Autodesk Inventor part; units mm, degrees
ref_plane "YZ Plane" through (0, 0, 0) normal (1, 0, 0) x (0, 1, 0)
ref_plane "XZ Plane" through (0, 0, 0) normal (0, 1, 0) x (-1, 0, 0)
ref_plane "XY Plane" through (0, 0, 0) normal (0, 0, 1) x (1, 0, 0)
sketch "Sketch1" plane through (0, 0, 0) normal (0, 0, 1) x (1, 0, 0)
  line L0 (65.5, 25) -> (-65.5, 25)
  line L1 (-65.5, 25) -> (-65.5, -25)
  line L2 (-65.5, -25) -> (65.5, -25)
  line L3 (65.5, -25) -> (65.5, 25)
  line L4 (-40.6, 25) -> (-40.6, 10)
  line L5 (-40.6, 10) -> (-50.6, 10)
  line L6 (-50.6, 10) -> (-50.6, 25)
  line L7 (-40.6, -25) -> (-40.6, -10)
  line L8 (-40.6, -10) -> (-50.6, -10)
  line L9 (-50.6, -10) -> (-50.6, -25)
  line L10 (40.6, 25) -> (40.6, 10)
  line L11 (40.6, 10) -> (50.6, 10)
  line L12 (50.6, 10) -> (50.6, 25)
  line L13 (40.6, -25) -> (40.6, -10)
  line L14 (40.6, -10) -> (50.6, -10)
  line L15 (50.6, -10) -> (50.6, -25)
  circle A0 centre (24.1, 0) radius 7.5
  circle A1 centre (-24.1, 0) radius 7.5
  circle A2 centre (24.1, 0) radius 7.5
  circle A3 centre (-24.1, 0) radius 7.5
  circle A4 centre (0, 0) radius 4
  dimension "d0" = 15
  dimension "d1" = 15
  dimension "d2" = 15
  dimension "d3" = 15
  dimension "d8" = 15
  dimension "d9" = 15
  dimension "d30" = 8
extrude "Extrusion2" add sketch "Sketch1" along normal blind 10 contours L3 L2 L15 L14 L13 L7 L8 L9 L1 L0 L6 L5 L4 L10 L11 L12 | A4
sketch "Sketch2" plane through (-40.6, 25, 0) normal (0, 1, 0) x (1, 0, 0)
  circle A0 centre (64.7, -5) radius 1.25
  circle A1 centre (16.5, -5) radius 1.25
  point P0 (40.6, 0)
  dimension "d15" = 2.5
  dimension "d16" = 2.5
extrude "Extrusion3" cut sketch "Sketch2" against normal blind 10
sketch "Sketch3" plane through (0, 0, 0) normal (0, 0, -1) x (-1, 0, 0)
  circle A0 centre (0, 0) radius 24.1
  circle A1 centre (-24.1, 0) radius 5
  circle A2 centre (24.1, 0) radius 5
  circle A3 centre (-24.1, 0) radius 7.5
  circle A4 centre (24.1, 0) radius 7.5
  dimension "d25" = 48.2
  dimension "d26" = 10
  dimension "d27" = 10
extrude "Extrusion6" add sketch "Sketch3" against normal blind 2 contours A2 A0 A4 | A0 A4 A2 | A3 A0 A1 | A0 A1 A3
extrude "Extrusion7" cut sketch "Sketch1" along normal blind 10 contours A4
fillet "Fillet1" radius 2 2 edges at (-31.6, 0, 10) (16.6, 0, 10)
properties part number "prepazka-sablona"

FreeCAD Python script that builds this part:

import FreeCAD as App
import Part
import Sketcher

V = App.Vector
Q = App.Units.Quantity


def edges_at(feature, points):
    """Names of the edges that pass closest to the given points."""
    edges = feature.Shape.Edges
    near = lambda p: min(range(len(edges)), key=lambda i: edges[i].distToShape(Part.Vertex(*p))[0])
    return sorted({f"Edge{near(p) + 1}" for p in points})

doc = App.newDocument("Part")
body = doc.addObject("PartDesign::Body", "Body")

# Sketch on XY plane
sketch1 = body.newObject("Sketcher::SketchObject", "Sketch")
sketch1.AttachmentSupport = (doc.getObject("XY_Plane"), [""])
sketch1.MapMode = "FlatFace"
sketch1.addGeometry([
    Part.LineSegment(V(66, -25, 0), V(66, 25, 0)),  # 0
    Part.LineSegment(V(66, 25, 0), V(51, 25, 0)),  # 1
    Part.LineSegment(V(51, 25, 0), V(51, 10, 0)),  # 2
    Part.LineSegment(V(51, 10, 0), V(41, 10, 0)),  # 3
    Part.LineSegment(V(41, 10, 0), V(41, 25, 0)),  # 4
    Part.LineSegment(V(41, 25, 0), V(-41, 25, 0)),  # 5
    Part.LineSegment(V(-41, 25, 0), V(-41, 10, 0)),  # 6
    Part.LineSegment(V(-41, 10, 0), V(-51, 10, 0)),  # 7
    Part.LineSegment(V(-51, 10, 0), V(-51, 25, 0)),  # 8
    Part.LineSegment(V(-51, 25, 0), V(-66, 25, 0)),  # 9
    Part.LineSegment(V(-66, 25, 0), V(-66, -25, 0)),  # 10
    Part.LineSegment(V(-66, -25, 0), V(-51, -25, 0)),  # 11
    Part.LineSegment(V(-51, -25, 0), V(-51, -10, 0)),  # 12
    Part.LineSegment(V(-51, -10, 0), V(-41, -10, 0)),  # 13
    Part.LineSegment(V(-41, -10, 0), V(-41, -25, 0)),  # 14
    Part.LineSegment(V(-41, -25, 0), V(41, -25, 0)),  # 15
    Part.LineSegment(V(41, -25, 0), V(41, -10, 0)),  # 16
    Part.LineSegment(V(41, -10, 0), V(51, -10, 0)),  # 17
    Part.LineSegment(V(51, -10, 0), V(51, -25, 0)),  # 18
    Part.LineSegment(V(51, -25, 0), V(66, -25, 0)),  # 19
    Part.Circle(V(-24, 0, 0), V(0, 0, 1), 8),  # 20
    Part.Circle(V(24, 0, 0), V(0, 0, 1), 8),  # 21
], False)
sketch1.addConstraint([
    Sketcher.Constraint("Coincident", 0, 2, 1, 1),
    Sketcher.Constraint("Coincident", 1, 2, 2, 1),
    Sketcher.Constraint("Coincident", 2, 2, 3, 1),
    Sketcher.Constraint("Coincident", 3, 2, 4, 1),
    Sketcher.Constraint("Coincident", 4, 2, 5, 1),
    Sketcher.Constraint("Coincident", 5, 2, 6, 1),
    Sketcher.Constraint("Coincident", 6, 2, 7, 1),
    Sketcher.Constraint("Coincident", 7, 2, 8, 1),
    Sketcher.Constraint("Coincident", 8, 2, 9, 1),
    Sketcher.Constraint("Coincident", 9, 2, 10, 1),
    Sketcher.Constraint("Coincident", 10, 2, 11, 1),
    Sketcher.Constraint("Coincident", 11, 2, 12, 1),
    Sketcher.Constraint("Coincident", 12, 2, 13, 1),
    Sketcher.Constraint("Coincident", 13, 2, 14, 1),
    Sketcher.Constraint("Coincident", 14, 2, 15, 1),
    Sketcher.Constraint("Coincident", 15, 2, 16, 1),
    Sketcher.Constraint("Coincident", 16, 2, 17, 1),
    Sketcher.Constraint("Coincident", 17, 2, 18, 1),
    Sketcher.Constraint("Coincident", 18, 2, 19, 1),
    Sketcher.Constraint("Coincident", 19, 2, 0, 1),
    Sketcher.Constraint("Vertical", 0),
    Sketcher.Constraint("Horizontal", 1),
    Sketcher.Constraint("Vertical", 2),
    Sketcher.Constraint("Horizontal", 3),
    Sketcher.Constraint("Vertical", 4),
    Sketcher.Constraint("Horizontal", 5),
    Sketcher.Constraint("Vertical", 6),
    Sketcher.Constraint("Horizontal", 7),
    Sketcher.Constraint("Vertical", 8),
    Sketcher.Constraint("Horizontal", 9),
    Sketcher.Constraint("Vertical", 10),
    Sketcher.Constraint("Horizontal", 11),
    Sketcher.Constraint("Vertical", 12),
    Sketcher.Constraint("Horizontal", 13),
    Sketcher.Constraint("Vertical", 14),
    Sketcher.Constraint("Horizontal", 15),
    Sketcher.Constraint("Vertical", 16),
    Sketcher.Constraint("Horizontal", 17),
    Sketcher.Constraint("Vertical", 18),
    Sketcher.Constraint("Horizontal", 19),
    Sketcher.Constraint("Equal", 20, 21),
    Sketcher.Constraint("Symmetric", 20, 3, 21, 3, -1, 1),
    Sketcher.Constraint("Symmetric", 0, 2, 10, 2, -1, 1),
    Sketcher.Constraint("Symmetric", 2, 2, 12, 2, -1, 1),
    Sketcher.Constraint("Symmetric", 4, 2, 14, 2, -1, 1),
    Sketcher.Constraint("Symmetric", 6, 2, 16, 2, -1, 1),
    Sketcher.Constraint("Symmetric", 8, 2, 18, 2, -1, 1),
    Sketcher.Constraint("Symmetric", 3, 2, 6, 2, -2),
    Sketcher.Constraint("Symmetric", 1, 2, 8, 2, -2),
    Sketcher.Constraint("PointOnObject", 20, 3, -1),
    Sketcher.Constraint("Horizontal", 1, 2, 4, 2),
    Sketcher.Constraint("Diameter", 20, Q("15 mm")),
    Sketcher.Constraint("DistanceY", 2, 2, 2, 1, Q("15 mm")),
    Sketcher.Constraint("DistanceX", 3, 2, 3, 1, Q("10 mm")),
    Sketcher.Constraint("DistanceY", 0, 1, 0, 2, Q("50 mm")),
    Sketcher.Constraint("DistanceX", 1, 2, 1, 1, Q("14.9 mm")),
    Sketcher.Constraint("DistanceX", 5, 2, 5, 1, Q("81.2 mm")),
    Sketcher.Constraint("DistanceX", 20, 3, -1, 1, Q("24.1 mm")),
])
pad1 = body.newObject("PartDesign::Pad", "Pad")
pad1.Profile = sketch1
pad1.Length = 10

# Sketch on XZ plane
sketch2 = body.newObject("Sketcher::SketchObject", "Sketch001")
sketch2.AttachmentSupport = (doc.getObject("XZ_Plane"), [""])
sketch2.MapMode = "FlatFace"
sketch2.AttachmentOffset = App.Placement(V(0, 0, -25), App.Rotation())
sketch2.addGeometry([
    Part.Circle(V(24.1, 5, 0), V(0, 0, 1), 1.2),
    Part.Circle(V(-24.1, 5, 0), V(0, 0, 1), 1.2),
], False)
sketch2.addConstraint([
    Sketcher.Constraint("Equal", 0, 1),
    Sketcher.Constraint("Symmetric", 0, 3, 1, 3, -2),
    Sketcher.Constraint("Diameter", 0, Q("2.5 mm")),
    Sketcher.Constraint("DistanceY", -1, 1, 0, 3, Q("5 mm")),
    Sketcher.Constraint("DistanceX", -1, 1, 0, 3, Q("24.1 mm")),
])
pocket1 = body.newObject("PartDesign::Pocket", "Pocket")
pocket1.Profile = sketch2
pocket1.Length = 10
pocket1.Reversed = True

# Sketch on XY plane
sketch3 = body.newObject("Sketcher::SketchObject", "Sketch002")
sketch3.AttachmentSupport = (doc.getObject("XY_Plane"), [""])
sketch3.MapMode = "FlatFace"
sketch3.addGeometry([
    Part.Circle(V(-24, 0, 0), V(0, 0, 1), 8),
    Part.Circle(V(-24, 0, 0), V(0, 0, 1), 5),
    Part.Circle(V(24, 0, 0), V(0, 0, 1), 8),
    Part.Circle(V(24, 0, 0), V(0, 0, 1), 5),
], False)
sketch3.addConstraint([
    Sketcher.Constraint("Coincident", 1, 3, 0, 3),
    Sketcher.Constraint("Coincident", 3, 3, 2, 3),
    Sketcher.Constraint("Equal", 0, 2),
    Sketcher.Constraint("Equal", 1, 3),
    Sketcher.Constraint("Symmetric", 0, 3, 2, 3, -1, 1),
    Sketcher.Constraint("PointOnObject", 0, 3, -1),
    Sketcher.Constraint("Diameter", 1, Q("10 mm")),
    Sketcher.Constraint("Diameter", 0, Q("15 mm")),
    Sketcher.Constraint("DistanceX", 0, 3, 2, 3, Q("48.2 mm")),
])
pad2 = body.newObject("PartDesign::Pad", "Pad001")
pad2.Profile = sketch3
pad2.Length = 2

# Sketch on XY plane
sketch4 = body.newObject("Sketcher::SketchObject", "Sketch003")
sketch4.AttachmentSupport = (doc.getObject("XY_Plane"), [""])
sketch4.MapMode = "FlatFace"
sketch4.addGeometry(Part.Circle(V(0, 0, 0), V(0, 0, 1), 4), False)
sketch4.addConstraint([
    Sketcher.Constraint("Coincident", 0, 3, -1, 1),
    Sketcher.Constraint("Diameter", 0, Q("8 mm")),
])
pocket2 = body.newObject("PartDesign::Pocket", "Pocket001")
pocket2.Profile = sketch4
pocket2.Length = 10
pocket2.Reversed = True
doc.recompute()

fillet = body.newObject("PartDesign::Fillet", "Fillet")
fillet.Base = (pocket2, edges_at(pocket2, [(-31.6, 0, 10), (16.6, 0, 10)]))
fillet.Radius = 2

doc.recompute()
